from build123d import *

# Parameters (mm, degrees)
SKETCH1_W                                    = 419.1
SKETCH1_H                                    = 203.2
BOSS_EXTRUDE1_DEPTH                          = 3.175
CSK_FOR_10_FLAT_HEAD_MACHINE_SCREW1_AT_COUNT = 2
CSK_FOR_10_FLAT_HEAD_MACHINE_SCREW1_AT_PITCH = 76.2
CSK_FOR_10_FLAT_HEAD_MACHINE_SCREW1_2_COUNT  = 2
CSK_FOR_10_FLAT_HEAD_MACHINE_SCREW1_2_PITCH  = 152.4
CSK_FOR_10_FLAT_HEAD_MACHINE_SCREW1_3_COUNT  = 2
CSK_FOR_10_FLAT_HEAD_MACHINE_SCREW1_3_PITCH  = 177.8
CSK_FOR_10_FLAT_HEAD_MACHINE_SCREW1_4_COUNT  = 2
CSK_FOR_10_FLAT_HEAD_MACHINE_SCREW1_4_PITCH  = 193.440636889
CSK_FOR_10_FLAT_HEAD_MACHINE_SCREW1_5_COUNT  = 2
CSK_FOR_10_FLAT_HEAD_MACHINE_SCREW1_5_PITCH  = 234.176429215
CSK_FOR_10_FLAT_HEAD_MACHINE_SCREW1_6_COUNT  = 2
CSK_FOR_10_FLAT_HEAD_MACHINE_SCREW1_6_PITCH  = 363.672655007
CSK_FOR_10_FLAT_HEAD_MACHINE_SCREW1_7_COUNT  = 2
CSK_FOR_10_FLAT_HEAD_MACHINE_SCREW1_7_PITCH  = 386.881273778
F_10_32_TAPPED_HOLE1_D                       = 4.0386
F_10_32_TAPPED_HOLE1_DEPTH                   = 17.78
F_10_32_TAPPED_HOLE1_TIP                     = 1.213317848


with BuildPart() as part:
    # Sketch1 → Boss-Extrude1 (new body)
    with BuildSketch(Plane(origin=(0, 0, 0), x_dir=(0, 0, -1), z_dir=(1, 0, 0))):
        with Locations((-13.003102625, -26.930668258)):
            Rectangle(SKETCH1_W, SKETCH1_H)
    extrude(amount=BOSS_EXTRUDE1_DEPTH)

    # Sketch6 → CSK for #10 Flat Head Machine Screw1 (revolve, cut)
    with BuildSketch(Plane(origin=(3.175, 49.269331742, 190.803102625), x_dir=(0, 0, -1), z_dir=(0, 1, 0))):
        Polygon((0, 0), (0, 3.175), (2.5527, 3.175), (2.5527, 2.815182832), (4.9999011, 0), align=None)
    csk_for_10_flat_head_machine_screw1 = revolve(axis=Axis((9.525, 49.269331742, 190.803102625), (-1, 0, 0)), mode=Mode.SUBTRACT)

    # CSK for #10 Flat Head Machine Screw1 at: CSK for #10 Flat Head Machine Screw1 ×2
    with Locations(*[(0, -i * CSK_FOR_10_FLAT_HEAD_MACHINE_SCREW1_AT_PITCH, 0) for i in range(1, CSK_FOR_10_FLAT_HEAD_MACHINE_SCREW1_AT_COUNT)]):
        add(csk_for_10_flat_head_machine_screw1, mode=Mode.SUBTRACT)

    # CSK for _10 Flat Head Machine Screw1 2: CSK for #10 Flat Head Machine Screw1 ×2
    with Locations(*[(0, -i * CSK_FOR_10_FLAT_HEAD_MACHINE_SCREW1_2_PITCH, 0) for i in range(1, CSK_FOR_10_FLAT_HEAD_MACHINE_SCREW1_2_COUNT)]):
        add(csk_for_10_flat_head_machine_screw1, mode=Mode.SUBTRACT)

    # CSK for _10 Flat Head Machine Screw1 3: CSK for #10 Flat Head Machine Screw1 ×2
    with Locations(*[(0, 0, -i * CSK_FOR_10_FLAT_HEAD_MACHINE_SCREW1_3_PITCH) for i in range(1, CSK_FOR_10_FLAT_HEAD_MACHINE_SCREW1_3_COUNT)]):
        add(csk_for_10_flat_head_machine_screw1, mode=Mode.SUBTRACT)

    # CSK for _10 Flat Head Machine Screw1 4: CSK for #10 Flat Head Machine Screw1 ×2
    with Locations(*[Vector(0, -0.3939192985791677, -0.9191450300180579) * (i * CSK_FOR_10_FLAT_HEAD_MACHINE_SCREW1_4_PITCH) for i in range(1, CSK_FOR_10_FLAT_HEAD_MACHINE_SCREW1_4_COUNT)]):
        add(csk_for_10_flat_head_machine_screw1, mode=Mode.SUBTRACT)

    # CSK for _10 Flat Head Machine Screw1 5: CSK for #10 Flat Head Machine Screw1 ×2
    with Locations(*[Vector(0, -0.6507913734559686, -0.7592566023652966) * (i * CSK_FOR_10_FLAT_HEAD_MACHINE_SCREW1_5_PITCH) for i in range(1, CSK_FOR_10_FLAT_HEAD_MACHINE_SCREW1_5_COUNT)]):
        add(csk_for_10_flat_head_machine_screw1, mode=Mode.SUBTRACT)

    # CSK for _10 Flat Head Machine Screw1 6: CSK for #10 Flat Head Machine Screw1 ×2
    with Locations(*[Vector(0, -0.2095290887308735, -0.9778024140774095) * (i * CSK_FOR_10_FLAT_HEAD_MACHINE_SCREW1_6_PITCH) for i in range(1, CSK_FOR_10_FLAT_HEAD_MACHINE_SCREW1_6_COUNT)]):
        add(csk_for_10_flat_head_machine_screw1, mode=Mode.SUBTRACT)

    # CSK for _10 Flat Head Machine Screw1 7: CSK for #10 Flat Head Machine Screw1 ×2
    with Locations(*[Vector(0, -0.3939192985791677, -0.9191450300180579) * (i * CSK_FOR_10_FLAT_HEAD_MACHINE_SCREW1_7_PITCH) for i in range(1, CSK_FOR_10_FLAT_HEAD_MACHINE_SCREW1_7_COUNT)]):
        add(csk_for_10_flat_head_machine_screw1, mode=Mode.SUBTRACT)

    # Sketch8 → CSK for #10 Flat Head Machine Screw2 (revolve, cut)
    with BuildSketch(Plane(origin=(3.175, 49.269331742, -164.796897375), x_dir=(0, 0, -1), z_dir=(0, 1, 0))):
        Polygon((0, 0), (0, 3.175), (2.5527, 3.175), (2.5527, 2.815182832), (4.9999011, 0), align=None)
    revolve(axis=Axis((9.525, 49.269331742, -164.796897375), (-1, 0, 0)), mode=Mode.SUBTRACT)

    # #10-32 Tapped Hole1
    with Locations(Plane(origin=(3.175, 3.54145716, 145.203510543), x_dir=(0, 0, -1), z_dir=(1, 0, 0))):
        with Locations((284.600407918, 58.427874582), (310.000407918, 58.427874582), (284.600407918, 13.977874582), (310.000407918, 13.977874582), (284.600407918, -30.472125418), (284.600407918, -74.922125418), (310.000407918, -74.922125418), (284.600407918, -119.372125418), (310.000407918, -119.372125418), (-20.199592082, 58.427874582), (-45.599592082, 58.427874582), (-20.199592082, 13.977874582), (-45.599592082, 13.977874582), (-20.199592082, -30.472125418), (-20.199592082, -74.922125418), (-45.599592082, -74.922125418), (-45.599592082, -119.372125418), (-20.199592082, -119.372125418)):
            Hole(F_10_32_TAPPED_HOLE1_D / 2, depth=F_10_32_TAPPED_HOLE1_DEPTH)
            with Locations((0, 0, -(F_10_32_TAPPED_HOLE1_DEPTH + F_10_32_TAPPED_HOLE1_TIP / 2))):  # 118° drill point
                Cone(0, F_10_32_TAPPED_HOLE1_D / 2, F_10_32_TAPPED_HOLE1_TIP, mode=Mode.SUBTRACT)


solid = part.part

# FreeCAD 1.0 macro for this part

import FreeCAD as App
import Part
import Sketcher
Q = App.Units.Quantity

doc = App.newDocument("Part")
body = doc.addObject("PartDesign::Body", "Body")

# Sketch on YZ plane
sketch1 = body.newObject("Sketcher::SketchObject", "Sketch")
sketch1.AttachmentSupport = (doc.getObject("YZ_Plane"), [""])
sketch1.MapMode = "FlatFace"
sketch1.addGeometry([
    Part.LineSegment(App.Vector(75, 223, 0), App.Vector(-129, 223, 0)),
    Part.LineSegment(App.Vector(-129, 223, 0), App.Vector(-129, -197, 0)),
    Part.LineSegment(App.Vector(-129, -197, 0), App.Vector(75, -197, 0)),
    Part.LineSegment(App.Vector(75, -197, 0), App.Vector(75, 223, 0)),
], False)
sketch1.addConstraint([
    Sketcher.Constraint("Coincident", 0, 2, 1, 1),
    Sketcher.Constraint("Coincident", 1, 2, 2, 1),
    Sketcher.Constraint("Coincident", 2, 2, 3, 1),
    Sketcher.Constraint("Coincident", 3, 2, 0, 1),
    Sketcher.Constraint("Horizontal", 0),
    Sketcher.Constraint("Vertical", 1),
    Sketcher.Constraint("Horizontal", 2),
    Sketcher.Constraint("Vertical", 3),
    Sketcher.Constraint("DistanceX", 0, 2, 0, 1, Q("8 in")),
    Sketcher.Constraint("DistanceY", 1, 2, 1, 1, Q("16.5 in")),
    Sketcher.Constraint("DistanceX", 0, 2, -1, 1, 128.530668),
    Sketcher.Constraint("DistanceY", -1, 1, 0, 2, 222.553103),
])
pad1 = body.newObject("PartDesign::Pad", "Pad")
pad1.Profile = sketch1
pad1.Length = Q("0.125 in")

# Sketch on XZ plane
sketch2 = body.newObject("Sketcher::SketchObject", "Sketch001")
sketch2.AttachmentSupport = (doc.getObject("XZ_Plane"), [""])
sketch2.MapMode = "FlatFace"
sketch2.AttachmentOffset = App.Placement(App.Vector(0, 0, -49.269332), App.Rotation())
sketch2.addGeometry([
    Part.LineSegment(App.Vector(0, 190.8, 0), App.Vector(3.17, 190.8, 0)),  # 0
    Part.LineSegment(App.Vector(3.17, 190.8, 0), App.Vector(3.17, 185.8, 0)),  # 1
    Part.LineSegment(App.Vector(3.17, 185.8, 0), App.Vector(0.36, 188.25, 0)),  # 2
    Part.LineSegment(App.Vector(0.36, 188.25, 0), App.Vector(0, 188.25, 0)),  # 3
    Part.LineSegment(App.Vector(0, 188.25, 0), App.Vector(0, 190.8, 0)),  # 4
], False)
sketch2.addGeometry(Part.LineSegment(App.Vector(3.17, 190.8, 0), App.Vector(0, 190.8, 0)), True)  # axis
sketch2.addConstraint([
    Sketcher.Constraint("Coincident", 0, 2, 1, 1),
    Sketcher.Constraint("Coincident", 1, 2, 2, 1),
    Sketcher.Constraint("Coincident", 2, 2, 3, 1),
    Sketcher.Constraint("Coincident", 3, 2, 4, 1),
    Sketcher.Constraint("Coincident", 4, 2, 0, 1),
    Sketcher.Constraint("Horizontal", 0),
    Sketcher.Constraint("Vertical", 1),
    Sketcher.Constraint("Horizontal", 3),
    Sketcher.Constraint("Vertical", 4),
    Sketcher.Constraint("Horizontal", 5),
    Sketcher.Constraint("Coincident", 5, 1, 0, 2),
    Sketcher.Constraint("PointOnObject", 3, 2, -2),
    Sketcher.Constraint("PointOnObject", 5, 2, -2),
    Sketcher.Constraint("Angle", 2, Q("139 deg")),
    Sketcher.Constraint("DistanceX", 0, 1, 0, 2, Q("0.125 in")),
    Sketcher.Constraint("DistanceY", 4, 1, 4, 2, Q("0.1005 in")),
    Sketcher.Constraint("DistanceY", 1, 2, 1, 1, 4.999901),
    Sketcher.Constraint("DistanceY", -1, 1, 1, 2, 185.803202),
])
groove = body.newObject("PartDesign::Groove", "Groove")
groove.Profile = sketch2
groove.ReferenceAxis = (sketch2, ["Axis0"])
groove.Angle = 360
doc.recompute()

linearpattern = body.newObject("PartDesign::LinearPattern", "LinearPattern")
linearpattern.Originals = [groove]
linearpattern.Direction = (doc.getObject("Y_Axis"), [""])
linearpattern.Mode = "offset"
linearpattern.Offset = Q("3 in")
linearpattern.Occurrences = 2
linearpattern.Reversed = True
body.Tip = linearpattern
doc.recompute()

linearpattern2 = body.newObject("PartDesign::LinearPattern", "LinearPattern001")
linearpattern2.Originals = [groove]
linearpattern2.Direction = (doc.getObject("Y_Axis"), [""])
linearpattern2.Mode = "offset"
linearpattern2.Offset = Q("6 in")
linearpattern2.Occurrences = 2
linearpattern2.Reversed = True
body.Tip = linearpattern2
doc.recompute()

linearpattern3 = body.newObject("PartDesign::LinearPattern", "LinearPattern002")
linearpattern3.Originals = [groove]
linearpattern3.Direction = (doc.getObject("Z_Axis"), [""])
linearpattern3.Mode = "offset"
linearpattern3.Offset = Q("7 in")
linearpattern3.Occurrences = 2
linearpattern3.Reversed = True
body.Tip = linearpattern3
doc.recompute()

datumline = body.newObject("PartDesign::Line", "DatumLine")
datumline.Placement = App.Placement(App.Vector(0, 0, 0), App.Rotation(App.Vector(0, 0, 1), App.Vector(0, -0.393919299, -0.91914503)))
linearpattern4 = body.newObject("PartDesign::LinearPattern", "LinearPattern003")
linearpattern4.Originals = [groove]
linearpattern4.Direction = (datumline, [""])
linearpattern4.Mode = "offset"
linearpattern4.Offset = 193.440637
linearpattern4.Occurrences = 2
body.Tip = linearpattern4
doc.recompute()

datumline2 = body.newObject("PartDesign::Line", "DatumLine001")
datumline2.Placement = App.Placement(App.Vector(0, 0, 0), App.Rotation(App.Vector(0, 0, 1), App.Vector(0, -0.650791373, -0.759256602)))
linearpattern5 = body.newObject("PartDesign::LinearPattern", "LinearPattern004")
linearpattern5.Originals = [groove]
linearpattern5.Direction = (datumline2, [""])
linearpattern5.Mode = "offset"
linearpattern5.Offset = 234.176429
linearpattern5.Occurrences = 2
body.Tip = linearpattern5
doc.recompute()

datumline3 = body.newObject("PartDesign::Line", "DatumLine002")
datumline3.Placement = App.Placement(App.Vector(0, 0, 0), App.Rotation(App.Vector(0, 0, 1), App.Vector(0, -0.209529089, -0.977802414)))
linearpattern6 = body.newObject("PartDesign::LinearPattern", "LinearPattern005")
linearpattern6.Originals = [groove]
linearpattern6.Direction = (datumline3, [""])
linearpattern6.Mode = "offset"
linearpattern6.Offset = 363.672655
linearpattern6.Occurrences = 2
body.Tip = linearpattern6
doc.recompute()

datumline4 = body.newObject("PartDesign::Line", "DatumLine003")
datumline4.Placement = App.Placement(App.Vector(0, 0, 0), App.Rotation(App.Vector(0, 0, 1), App.Vector(0, -0.393919299, -0.91914503)))
linearpattern7 = body.newObject("PartDesign::LinearPattern", "LinearPattern006")
linearpattern7.Originals = [groove]
linearpattern7.Direction = (datumline4, [""])
linearpattern7.Mode = "offset"
linearpattern7.Offset = 386.881274
linearpattern7.Occurrences = 2
body.Tip = linearpattern7

# Sketch on XZ plane
sketch3 = body.newObject("Sketcher::SketchObject", "Sketch002")
sketch3.AttachmentSupport = (doc.getObject("XZ_Plane"), [""])
sketch3.MapMode = "FlatFace"
sketch3.AttachmentOffset = App.Placement(App.Vector(0, 0, -49.269332), App.Rotation())
sketch3.addGeometry([
    Part.LineSegment(App.Vector(0, -164.8, 0), App.Vector(3.17, -164.8, 0)),  # 0
    Part.LineSegment(App.Vector(3.17, -164.8, 0), App.Vector(3.17, -169.8, 0)),  # 1
    Part.LineSegment(App.Vector(3.17, -169.8, 0), App.Vector(0.36, -167.35, 0)),  # 2
    Part.LineSegment(App.Vector(0.36, -167.35, 0), App.Vector(0, -167.35, 0)),  # 3
    Part.LineSegment(App.Vector(0, -167.35, 0), App.Vector(0, -164.8, 0)),  # 4
], False)
sketch3.addGeometry(Part.LineSegment(App.Vector(3.17, -164.8, 0), App.Vector(0, -164.8, 0)), True)  # axis
sketch3.addConstraint([
    Sketcher.Constraint("Coincident", 0, 2, 1, 1),
    Sketcher.Constraint("Coincident", 1, 2, 2, 1),
    Sketcher.Constraint("Coincident", 2, 2, 3, 1),
    Sketcher.Constraint("Coincident", 3, 2, 4, 1),
    Sketcher.Constraint("Coincident", 4, 2, 0, 1),
    Sketcher.Constraint("Horizontal", 0),
    Sketcher.Constraint("Vertical", 1),
    Sketcher.Constraint("Horizontal", 3),
    Sketcher.Constraint("Vertical", 4),
    Sketcher.Constraint("Horizontal", 5),
    Sketcher.Constraint("Coincident", 5, 1, 0, 2),
    Sketcher.Constraint("PointOnObject", 3, 2, -2),
    Sketcher.Constraint("PointOnObject", 5, 2, -2),
    Sketcher.Constraint("Angle", 2, Q("139 deg")),
    Sketcher.Constraint("DistanceX", 0, 1, 0, 2, Q("0.125 in")),
    Sketcher.Constraint("DistanceY", 4, 1, 4, 2, Q("0.1005 in")),
    Sketcher.Constraint("DistanceY", 1, 2, 1, 1, 4.999901),
    Sketcher.Constraint("DistanceY", 1, 2, -1, 1, 169.796798),
])
groove2 = body.newObject("PartDesign::Groove", "Groove001")
groove2.Profile = sketch3
groove2.ReferenceAxis = (sketch3, ["Axis0"])
groove2.Angle = 360

# Sketch on YZ plane
sketch4 = body.newObject("Sketcher::SketchObject", "Sketch003")
sketch4.AttachmentSupport = (doc.getObject("YZ_Plane"), [""])
sketch4.MapMode = "FlatFace"
sketch4.AttachmentOffset = App.Placement(App.Vector(0, 0, 0.125 * 25.4), App.Rotation())
sketch4.addGeometry([
    Part.Circle(App.Vector(62, -139.4, 0), App.Vector(0, 0, 1), 2),  # 0
    Part.Circle(App.Vector(62, -164.8, 0), App.Vector(0, 0, 1), 2),  # 1
    Part.Circle(App.Vector(17.5, -139.4, 0), App.Vector(0, 0, 1), 2),  # 2
    Part.Circle(App.Vector(17.5, -164.8, 0), App.Vector(0, 0, 1), 2),  # 3
    Part.Circle(App.Vector(-26.9, -139.4, 0), App.Vector(0, 0, 1), 2),  # 4
    Part.Circle(App.Vector(-71.4, -139.4, 0), App.Vector(0, 0, 1), 2),  # 5
    Part.Circle(App.Vector(-71.4, -164.8, 0), App.Vector(0, 0, 1), 2),  # 6
    Part.Circle(App.Vector(-115.8, -139.4, 0), App.Vector(0, 0, 1), 2),  # 7
    Part.Circle(App.Vector(-115.8, -164.8, 0), App.Vector(0, 0, 1), 2),  # 8
    Part.Circle(App.Vector(62, 165.4, 0), App.Vector(0, 0, 1), 2),  # 9
    Part.Circle(App.Vector(62, 190.8, 0), App.Vector(0, 0, 1), 2),  # 10
    Part.Circle(App.Vector(17.5, 165.4, 0), App.Vector(0, 0, 1), 2),  # 11
    Part.Circle(App.Vector(17.5, 190.8, 0), App.Vector(0, 0, 1), 2),  # 12
    Part.Circle(App.Vector(-26.9, 165.4, 0), App.Vector(0, 0, 1), 2),  # 13
    Part.Circle(App.Vector(-71.4, 165.4, 0), App.Vector(0, 0, 1), 2),  # 14
    Part.Circle(App.Vector(-71.4, 190.8, 0), App.Vector(0, 0, 1), 2),  # 15
    Part.Circle(App.Vector(-115.8, 190.8, 0), App.Vector(0, 0, 1), 2),  # 16
    Part.Circle(App.Vector(-115.8, 165.4, 0), App.Vector(0, 0, 1), 2),  # 17
], False)
sketch4.addConstraint([
    Sketcher.Constraint("Equal", 0, 1),
    Sketcher.Constraint("Equal", 1, 2),
    Sketcher.Constraint("Equal", 2, 3),
    Sketcher.Constraint("Equal", 3, 4),
    Sketcher.Constraint("Equal", 4, 5),
    Sketcher.Constraint("Equal", 5, 6),
    Sketcher.Constraint("Equal", 6, 7),
    Sketcher.Constraint("Equal", 7, 8),
    Sketcher.Constraint("Equal", 8, 9),
    Sketcher.Constraint("Equal", 9, 10),
    Sketcher.Constraint("Equal", 10, 11),
    Sketcher.Constraint("Equal", 11, 12),
    Sketcher.Constraint("Equal", 12, 13),
    Sketcher.Constraint("Equal", 13, 14),
    Sketcher.Constraint("Equal", 14, 15),
    Sketcher.Constraint("Equal", 15, 16),
    Sketcher.Constraint("Equal", 16, 17),
    Sketcher.Constraint("Horizontal", 0, 3, 2, 3),
    Sketcher.Constraint("Horizontal", 1, 3, 3, 3),
    Sketcher.Constraint("Horizontal", 2, 3, 4, 3),
    Sketcher.Constraint("Horizontal", 4, 3, 5, 3),
    Sketcher.Constraint("Horizontal", 3, 3, 6, 3),
    Sketcher.Constraint("Horizontal", 5, 3, 7, 3),
    Sketcher.Constraint("Horizontal", 6, 3, 8, 3),
    Sketcher.Constraint("Horizontal", 9, 3, 11, 3),
    Sketcher.Constraint("Horizontal", 10, 3, 12, 3),
    Sketcher.Constraint("Horizontal", 11, 3, 13, 3),
    Sketcher.Constraint("Horizontal", 13, 3, 14, 3),
    Sketcher.Constraint("Horizontal", 12, 3, 15, 3),
    Sketcher.Constraint("Horizontal", 15, 3, 16, 3),
    Sketcher.Constraint("Horizontal", 14, 3, 17, 3),
    Sketcher.Constraint("Vertical", 0, 3, 1, 3),
    Sketcher.Constraint("Vertical", 2, 3, 3, 3),
    Sketcher.Constraint("Vertical", 5, 3, 6, 3),
    Sketcher.Constraint("Vertical", 7, 3, 8, 3),
    Sketcher.Constraint("Vertical", 1, 3, 9, 3),
    Sketcher.Constraint("Vertical", 9, 3, 10, 3),
    Sketcher.Constraint("Vertical", 3, 3, 11, 3),
    Sketcher.Constraint("Vertical", 11, 3, 12, 3),
    Sketcher.Constraint("Vertical", 4, 3, 13, 3),
    Sketcher.Constraint("Vertical", 6, 3, 14, 3),
    Sketcher.Constraint("Vertical", 14, 3, 15, 3),
    Sketcher.Constraint("Vertical", 8, 3, 16, 3),
    Sketcher.Constraint("Vertical", 16, 3, 17, 3),
    Sketcher.Constraint("Diameter", 0, Q("0.159 in")),
    Sketcher.Constraint("DistanceY", 1, 3, 0, 3, Q("1 in")),
    Sketcher.Constraint("DistanceY", 0, 3, 9, 3, Q("12 in")),
    Sketcher.Constraint("DistanceY", 9, 3, 10, 3, Q("1 in")),
    Sketcher.Constraint("DistanceX", 4, 3, 0, 3, Q("3.5 in")),
    Sketcher.Constraint("DistanceX", 5, 3, 2, 3, Q("3.5 in")),
    Sketcher.Constraint("DistanceX", 7, 3, 4, 3, Q("3.5 in")),
    Sketcher.Constraint("DistanceX", 2, 3, 0, 3, Q("1.75 in")),
    Sketcher.Constraint("DistanceX", -1, 1, 0, 3, 61.969332),
    Sketcher.Constraint("DistanceY", 0, 3, -1, 1, 139.396897),
])
doc.recompute()
hole = body.newObject("PartDesign::Hole", "Hole")
hole.Profile = sketch4
hole.ThreadType = "None"
hole.Diameter = Q("0.159 in")
hole.DepthType = "Dimension"
hole.Depth = Q("0.7 in")
hole.DrillPoint = "Angled"
hole.DrillPointAngle = 118

doc.recompute()
